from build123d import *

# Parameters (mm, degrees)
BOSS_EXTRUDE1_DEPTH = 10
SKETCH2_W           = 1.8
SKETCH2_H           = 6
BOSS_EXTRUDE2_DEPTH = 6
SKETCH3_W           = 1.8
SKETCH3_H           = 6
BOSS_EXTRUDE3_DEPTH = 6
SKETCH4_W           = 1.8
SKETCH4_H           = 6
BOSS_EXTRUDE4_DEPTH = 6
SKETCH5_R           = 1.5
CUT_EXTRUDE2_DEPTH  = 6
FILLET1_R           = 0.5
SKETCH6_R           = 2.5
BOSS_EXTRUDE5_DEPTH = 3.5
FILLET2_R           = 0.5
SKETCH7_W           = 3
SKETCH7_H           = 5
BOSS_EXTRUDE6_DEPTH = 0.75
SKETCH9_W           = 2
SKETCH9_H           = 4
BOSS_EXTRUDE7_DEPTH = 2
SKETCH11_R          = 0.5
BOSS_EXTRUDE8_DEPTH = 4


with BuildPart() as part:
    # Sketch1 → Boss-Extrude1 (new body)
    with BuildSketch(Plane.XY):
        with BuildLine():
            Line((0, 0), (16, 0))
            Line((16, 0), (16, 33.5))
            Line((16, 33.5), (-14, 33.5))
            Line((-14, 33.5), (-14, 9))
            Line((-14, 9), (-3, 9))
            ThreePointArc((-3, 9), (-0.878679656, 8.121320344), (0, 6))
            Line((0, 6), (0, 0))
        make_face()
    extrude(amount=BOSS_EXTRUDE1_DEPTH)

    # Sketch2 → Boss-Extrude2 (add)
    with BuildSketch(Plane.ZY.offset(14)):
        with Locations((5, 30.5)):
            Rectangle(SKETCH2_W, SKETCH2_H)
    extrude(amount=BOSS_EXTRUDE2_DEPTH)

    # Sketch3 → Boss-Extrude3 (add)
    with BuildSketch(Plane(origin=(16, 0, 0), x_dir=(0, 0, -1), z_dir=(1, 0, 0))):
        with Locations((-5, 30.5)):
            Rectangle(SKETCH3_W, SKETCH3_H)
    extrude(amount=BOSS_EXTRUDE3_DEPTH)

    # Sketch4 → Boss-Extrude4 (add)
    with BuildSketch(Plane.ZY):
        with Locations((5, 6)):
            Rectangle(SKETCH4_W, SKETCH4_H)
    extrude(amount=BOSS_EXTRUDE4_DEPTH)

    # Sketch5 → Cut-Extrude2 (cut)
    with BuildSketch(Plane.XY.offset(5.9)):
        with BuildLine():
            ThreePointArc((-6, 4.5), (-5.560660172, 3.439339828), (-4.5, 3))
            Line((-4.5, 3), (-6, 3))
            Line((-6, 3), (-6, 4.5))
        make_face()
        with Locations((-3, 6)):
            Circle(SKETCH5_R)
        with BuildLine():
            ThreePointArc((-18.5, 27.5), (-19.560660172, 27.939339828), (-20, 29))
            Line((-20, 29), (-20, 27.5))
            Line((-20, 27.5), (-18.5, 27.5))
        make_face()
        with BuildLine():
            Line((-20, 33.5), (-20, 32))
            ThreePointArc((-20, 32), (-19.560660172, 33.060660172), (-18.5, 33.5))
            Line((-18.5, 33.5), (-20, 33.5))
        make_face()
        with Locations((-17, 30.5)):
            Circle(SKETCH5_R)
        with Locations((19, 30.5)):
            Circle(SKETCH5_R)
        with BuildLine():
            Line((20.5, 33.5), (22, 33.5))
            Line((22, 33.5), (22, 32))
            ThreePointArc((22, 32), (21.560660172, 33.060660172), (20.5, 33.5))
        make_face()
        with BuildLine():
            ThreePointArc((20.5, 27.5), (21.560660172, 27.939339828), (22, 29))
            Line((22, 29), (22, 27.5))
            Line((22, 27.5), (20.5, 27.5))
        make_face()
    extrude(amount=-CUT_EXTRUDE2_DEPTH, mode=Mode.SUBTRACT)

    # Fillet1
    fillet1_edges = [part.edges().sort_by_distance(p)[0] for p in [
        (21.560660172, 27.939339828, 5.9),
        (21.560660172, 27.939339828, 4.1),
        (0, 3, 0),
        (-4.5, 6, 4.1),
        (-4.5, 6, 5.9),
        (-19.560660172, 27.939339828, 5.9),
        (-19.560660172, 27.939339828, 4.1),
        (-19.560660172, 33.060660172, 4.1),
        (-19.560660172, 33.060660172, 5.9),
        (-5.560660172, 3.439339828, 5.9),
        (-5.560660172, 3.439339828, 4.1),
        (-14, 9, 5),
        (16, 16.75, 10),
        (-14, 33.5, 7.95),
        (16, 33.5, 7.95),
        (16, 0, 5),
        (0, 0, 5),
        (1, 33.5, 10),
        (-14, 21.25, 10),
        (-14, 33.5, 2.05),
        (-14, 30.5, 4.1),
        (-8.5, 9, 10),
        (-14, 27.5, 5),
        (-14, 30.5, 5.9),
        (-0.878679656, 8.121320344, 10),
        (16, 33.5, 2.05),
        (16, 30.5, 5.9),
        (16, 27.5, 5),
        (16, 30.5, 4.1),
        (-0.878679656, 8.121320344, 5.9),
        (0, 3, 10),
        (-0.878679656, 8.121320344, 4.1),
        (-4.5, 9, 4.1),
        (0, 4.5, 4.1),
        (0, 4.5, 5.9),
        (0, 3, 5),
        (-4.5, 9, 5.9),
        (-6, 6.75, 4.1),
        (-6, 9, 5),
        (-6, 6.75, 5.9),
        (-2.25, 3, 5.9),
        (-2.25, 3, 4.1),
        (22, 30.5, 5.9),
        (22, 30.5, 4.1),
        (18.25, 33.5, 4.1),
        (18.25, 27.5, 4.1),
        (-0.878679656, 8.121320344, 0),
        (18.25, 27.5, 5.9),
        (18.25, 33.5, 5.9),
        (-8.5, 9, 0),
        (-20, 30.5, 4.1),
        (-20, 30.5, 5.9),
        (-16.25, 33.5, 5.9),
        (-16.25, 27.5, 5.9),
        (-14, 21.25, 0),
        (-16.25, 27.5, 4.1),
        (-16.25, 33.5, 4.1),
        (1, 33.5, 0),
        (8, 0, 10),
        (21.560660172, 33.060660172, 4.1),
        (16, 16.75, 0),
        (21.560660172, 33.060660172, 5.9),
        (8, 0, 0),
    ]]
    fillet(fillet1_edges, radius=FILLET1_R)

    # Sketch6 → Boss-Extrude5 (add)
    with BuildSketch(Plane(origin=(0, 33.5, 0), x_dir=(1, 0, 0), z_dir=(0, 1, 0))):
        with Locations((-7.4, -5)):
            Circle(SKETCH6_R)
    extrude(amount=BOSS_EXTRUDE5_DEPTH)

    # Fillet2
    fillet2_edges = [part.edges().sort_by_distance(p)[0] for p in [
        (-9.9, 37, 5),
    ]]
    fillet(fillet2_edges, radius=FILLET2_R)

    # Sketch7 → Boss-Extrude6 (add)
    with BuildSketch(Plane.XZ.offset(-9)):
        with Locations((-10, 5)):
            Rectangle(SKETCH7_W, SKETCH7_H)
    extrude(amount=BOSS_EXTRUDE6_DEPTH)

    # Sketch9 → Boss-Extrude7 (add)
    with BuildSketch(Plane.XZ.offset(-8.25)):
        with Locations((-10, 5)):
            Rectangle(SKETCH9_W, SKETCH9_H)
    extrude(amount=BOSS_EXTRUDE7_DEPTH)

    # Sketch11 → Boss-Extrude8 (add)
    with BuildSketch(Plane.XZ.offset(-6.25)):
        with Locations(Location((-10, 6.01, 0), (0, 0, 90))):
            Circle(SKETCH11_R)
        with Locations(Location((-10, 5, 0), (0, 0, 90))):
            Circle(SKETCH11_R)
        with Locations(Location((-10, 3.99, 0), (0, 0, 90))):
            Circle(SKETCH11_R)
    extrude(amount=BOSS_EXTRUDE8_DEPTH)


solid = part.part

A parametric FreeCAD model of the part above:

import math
import FreeCAD as App
import Part
import Sketcher

V = App.Vector


def edges_at(feature, points):
    """Names of the edges that pass closest to the given points."""
    edges = feature.Shape.Edges
    near = lambda p: min(range(len(edges)), key=lambda i: edges[i].distToShape(Part.Vertex(*p))[0])
    return sorted({f"Edge{near(p) + 1}" for p in points})

doc = App.newDocument("Part")
body = doc.addObject("PartDesign::Body", "Body")

# Sketch on XY plane
sketch1 = body.newObject("Sketcher::SketchObject", "Sketch")
sketch1.AttachmentSupport = (doc.getObject("XY_Plane"), [""])
sketch1.MapMode = "FlatFace"
sketch1.addGeometry([
    Part.LineSegment(V(0, 0, 0), V(16, 0, 0)),  # 0
    Part.LineSegment(V(16, 0, 0), V(16, 33.5, 0)),  # 1
    Part.LineSegment(V(16, 33.5, 0), V(-14, 33.5, 0)),  # 2
    Part.LineSegment(V(-14, 33.5, 0), V(-14, 9, 0)),  # 3
    Part.LineSegment(V(-14, 9, 0), V(-3, 9, 0)),  # 4
    Part.ArcOfCircle(Part.Circle(V(-3, 6, 0), V(0, 0, 1), 3), math.radians(0), math.radians(90)),  # 5
    Part.LineSegment(V(0, 6, 0), V(0, 0, 0)),  # 6
], False)
sketch1.addConstraint([
    Sketcher.Constraint("Coincident", 0, 2, 1, 1),
    Sketcher.Constraint("Coincident", 1, 2, 2, 1),
    Sketcher.Constraint("Coincident", 2, 2, 3, 1),
    Sketcher.Constraint("Coincident", 3, 2, 4, 1),
    Sketcher.Constraint("Tangent", 4, 2, 5, 2),
    Sketcher.Constraint("Tangent", 5, 1, 6, 1),
    Sketcher.Constraint("Coincident", 6, 2, 0, 1),
    Sketcher.Constraint("Horizontal", 0),
    Sketcher.Constraint("Vertical", 1),
    Sketcher.Constraint("Horizontal", 2),
    Sketcher.Constraint("Vertical", 3),
    Sketcher.Constraint("Horizontal", 4),
    Sketcher.Constraint("Vertical", 6),
    Sketcher.Constraint("Coincident", 6, 2, -1, 1),
    Sketcher.Constraint("Radius", 5, 3.0),
    Sketcher.Constraint("DistanceX", 0, 1, 0, 2, 16.0),
    Sketcher.Constraint("DistanceX", 2, 2, 2, 1, 30.0),
    Sketcher.Constraint("DistanceY", 6, 2, 6, 1, 6.0),
    Sketcher.Constraint("DistanceY", 1, 1, 1, 2, 33.5),
])
pad1 = body.newObject("PartDesign::Pad", "Pad")
pad1.Profile = sketch1
pad1.Length = 10

# Sketch on YZ plane
sketch2 = body.newObject("Sketcher::SketchObject", "Sketch001")
sketch2.AttachmentSupport = (doc.getObject("YZ_Plane"), [""])
sketch2.MapMode = "FlatFace"
sketch2.AttachmentOffset = App.Placement(V(0, 0, -14), App.Rotation())
sketch2.addGeometry([
    Part.LineSegment(V(33.5, 4.1, 0), V(27.5, 4.1, 0)),
    Part.LineSegment(V(27.5, 4.1, 0), V(27.5, 5.9, 0)),
    Part.LineSegment(V(27.5, 5.9, 0), V(33.5, 5.9, 0)),
    Part.LineSegment(V(33.5, 5.9, 0), V(33.5, 4.1, 0)),
], False)
sketch2.addConstraint([
    Sketcher.Constraint("Coincident", 0, 2, 1, 1),
    Sketcher.Constraint("Coincident", 1, 2, 2, 1),
    Sketcher.Constraint("Coincident", 2, 2, 3, 1),
    Sketcher.Constraint("Coincident", 3, 2, 0, 1),
    Sketcher.Constraint("Horizontal", 0),
    Sketcher.Constraint("Vertical", 1),
    Sketcher.Constraint("Horizontal", 2),
    Sketcher.Constraint("Vertical", 3),
    Sketcher.Constraint("DistanceX", 0, 2, 0, 1, 6.0),
    Sketcher.Constraint("DistanceY", 1, 1, 1, 2, 1.8),
    Sketcher.Constraint("DistanceX", -1, 1, 0, 2, 27.5),
    Sketcher.Constraint("DistanceY", -1, 1, 0, 2, 4.1),
])
pad2 = body.newObject("PartDesign::Pad", "Pad001")
pad2.Profile = sketch2
pad2.Length = 6
pad2.Reversed = True

# Sketch on YZ plane
sketch3 = body.newObject("Sketcher::SketchObject", "Sketch002")
sketch3.AttachmentSupport = (doc.getObject("YZ_Plane"), [""])
sketch3.MapMode = "FlatFace"
sketch3.AttachmentOffset = App.Placement(V(0, 0, 16), App.Rotation())
sketch3.addGeometry([
    Part.LineSegment(V(33.5, 5.9, 0), V(27.5, 5.9, 0)),
    Part.LineSegment(V(27.5, 5.9, 0), V(27.5, 4.1, 0)),
    Part.LineSegment(V(27.5, 4.1, 0), V(33.5, 4.1, 0)),
    Part.LineSegment(V(33.5, 4.1, 0), V(33.5, 5.9, 0)),
], False)
sketch3.addConstraint([
    Sketcher.Constraint("Coincident", 0, 2, 1, 1),
    Sketcher.Constraint("Coincident", 1, 2, 2, 1),
    Sketcher.Constraint("Coincident", 2, 2, 3, 1),
    Sketcher.Constraint("Coincident", 3, 2, 0, 1),
    Sketcher.Constraint("Horizontal", 0),
    Sketcher.Constraint("Vertical", 1),
    Sketcher.Constraint("Horizontal", 2),
    Sketcher.Constraint("Vertical", 3),
    Sketcher.Constraint("DistanceX", 0, 2, 0, 1, 6.0),
    Sketcher.Constraint("DistanceY", 1, 2, 1, 1, 1.8),
    Sketcher.Constraint("DistanceX", -1, 1, 0, 2, 27.5),
    Sketcher.Constraint("DistanceY", -1, 1, 0, 2, 5.9),
])
pad3 = body.newObject("PartDesign::Pad", "Pad002")
pad3.Profile = sketch3
pad3.Length = 6

# Sketch on YZ plane
sketch4 = body.newObject("Sketcher::SketchObject", "Sketch003")
sketch4.AttachmentSupport = (doc.getObject("YZ_Plane"), [""])
sketch4.MapMode = "FlatFace"
sketch4.addGeometry([
    Part.LineSegment(V(9, 4.1, 0), V(3, 4.1, 0)),
    Part.LineSegment(V(3, 4.1, 0), V(3, 5.9, 0)),
    Part.LineSegment(V(3, 5.9, 0), V(9, 5.9, 0)),
    Part.LineSegment(V(9, 5.9, 0), V(9, 4.1, 0)),
], False)
sketch4.addConstraint([
    Sketcher.Constraint("Coincident", 0, 2, 1, 1),
    Sketcher.Constraint("Coincident", 1, 2, 2, 1),
    Sketcher.Constraint("Coincident", 2, 2, 3, 1),
    Sketcher.Constraint("Coincident", 3, 2, 0, 1),
    Sketcher.Constraint("Horizontal", 0),
    Sketcher.Constraint("Vertical", 1),
    Sketcher.Constraint("Horizontal", 2),
    Sketcher.Constraint("Vertical", 3),
    Sketcher.Constraint("DistanceX", 0, 2, 0, 1, 6.0),
    Sketcher.Constraint("DistanceY", 1, 1, 1, 2, 1.8),
    Sketcher.Constraint("DistanceX", -1, 1, 0, 2, 3.0),
    Sketcher.Constraint("DistanceY", -1, 1, 0, 2, 4.1),
])
pad4 = body.newObject("PartDesign::Pad", "Pad003")
pad4.Profile = sketch4
pad4.Length = 6
pad4.Reversed = True

# Sketch on XY plane
sketch5 = body.newObject("Sketcher::SketchObject", "Sketch004")
sketch5.AttachmentSupport = (doc.getObject("XY_Plane"), [""])
sketch5.MapMode = "FlatFace"
sketch5.AttachmentOffset = App.Placement(V(0, 0, 5.9), App.Rotation())
sketch5.addGeometry([
    Part.ArcOfCircle(Part.Circle(V(-4.5, 4.5, 0), V(0, 0, 1), 1.5), math.radians(180), math.radians(270)),  # 0
    Part.LineSegment(V(-6, 4.5, 0), V(-6, 3, 0)),  # 1
    Part.LineSegment(V(-6, 3, 0), V(-4.5, 3, 0)),  # 2
    Part.Circle(V(-3, 6, 0), V(0, 0, 1), 1.5),  # 3
    Part.ArcOfCircle(Part.Circle(V(-18.5, 29, 0), V(0, 0, 1), 1.5), math.radians(180), math.radians(270)),  # 4
    Part.LineSegment(V(-20, 29, 0), V(-20, 27.5, 0)),  # 5
    Part.LineSegment(V(-20, 27.5, 0), V(-18.5, 27.5, 0)),  # 6
    Part.LineSegment(V(-20, 33.5, 0), V(-20, 32, 0)),  # 7
    Part.ArcOfCircle(Part.Circle(V(-18.5, 32, 0), V(0, 0, 1), 1.5), math.radians(90), math.radians(180)),  # 8
    Part.LineSegment(V(-18.5, 33.5, 0), V(-20, 33.5, 0)),  # 9
    Part.Circle(V(-17, 30.5, 0), V(0, 0, 1), 1.5),  # 10
    Part.Circle(V(19, 30.5, 0), V(0, 0, 1), 1.5),  # 11
    Part.LineSegment(V(22, 33.5, 0), V(20.5, 33.5, 0)),  # 12
    Part.ArcOfCircle(Part.Circle(V(20.5, 32, 0), V(0, 0, 1), 1.5), math.radians(0), math.radians(90)),  # 13
    Part.LineSegment(V(22, 32, 0), V(22, 33.5, 0)),  # 14
    Part.ArcOfCircle(Part.Circle(V(20.5, 29, 0), V(0, 0, 1), 1.5), math.radians(-90), math.radians(0)),  # 15
    Part.LineSegment(V(20.5, 27.5, 0), V(22, 27.5, 0)),  # 16
    Part.LineSegment(V(22, 27.5, 0), V(22, 29, 0)),  # 17
], False)
sketch5.addConstraint([
    Sketcher.Constraint("Tangent", 0, 1, 1, 1),
    Sketcher.Constraint("Coincident", 1, 2, 2, 1),
    Sketcher.Constraint("Tangent", 2, 2, 0, 2),
    Sketcher.Constraint("Tangent", 4, 1, 5, 1),
    Sketcher.Constraint("Coincident", 5, 2, 6, 1),
    Sketcher.Constraint("Tangent", 6, 2, 4, 2),
    Sketcher.Constraint("Tangent", 7, 2, 8, 2),
    Sketcher.Constraint("Tangent", 8, 1, 9, 1),
    Sketcher.Constraint("Coincident", 9, 2, 7, 1),
    Sketcher.Constraint("Tangent", 12, 2, 13, 2),
    Sketcher.Constraint("Tangent", 13, 1, 14, 1),
    Sketcher.Constraint("Coincident", 14, 2, 12, 1),
    Sketcher.Constraint("Tangent", 15, 1, 16, 1),
    Sketcher.Constraint("Coincident", 16, 2, 17, 1),
    Sketcher.Constraint("Tangent", 17, 2, 15, 2),
    Sketcher.Constraint("Vertical", 1),
    Sketcher.Constraint("Horizontal", 2),
    Sketcher.Constraint("Vertical", 5),
    Sketcher.Constraint("Horizontal", 6),
    Sketcher.Constraint("Vertical", 7),
    Sketcher.Constraint("Horizontal", 9),
    Sketcher.Constraint("Horizontal", 12),
    Sketcher.Constraint("Vertical", 14),
    Sketcher.Constraint("Horizontal", 16),
    Sketcher.Constraint("Vertical", 17),
    Sketcher.Constraint("Equal", 0, 3),
    Sketcher.Constraint("Equal", 3, 4),
    Sketcher.Constraint("Equal", 4, 8),
    Sketcher.Constraint("Equal", 8, 10),
    Sketcher.Constraint("Equal", 10, 11),
    Sketcher.Constraint("Equal", 11, 13),
    Sketcher.Constraint("Equal", 13, 15),
    Sketcher.Constraint("Horizontal", 10, 3, 11, 3),
    Sketcher.Constraint("Horizontal", 8, 3, 13, 3),
    Sketcher.Constraint("Horizontal", 4, 3, 15, 3),
    Sketcher.Constraint("Vertical", 4, 3, 8, 3),
    Sketcher.Constraint("Vertical", 13, 3, 15, 3),
    Sketcher.Constraint("Diameter", 3, 3.0),
    Sketcher.Constraint("DistanceX", 3, 3, -1, 1, 3.0),
    Sketcher.Constraint("DistanceY", -1, 1, 3, 3, 6.0),
    Sketcher.Constraint("DistanceY", -1, 1, 4, 3, 29.0),
    Sketcher.Constraint("DistanceY", -1, 1, 8, 3, 32.0),
    Sketcher.Constraint("DistanceX", 10, 3, -1, 1, 17.0),
    Sketcher.Constraint("DistanceX", -1, 1, 11, 3, 19.0),
    Sketcher.Constraint("DistanceX", 0, 1, -1, 1, 6.0),
    Sketcher.Constraint("DistanceY", -1, 1, 1, 2, 3.0),
    Sketcher.Constraint("DistanceX", 4, 1, -1, 1, 20.0),
    Sketcher.Constraint("DistanceX", -1, 1, 13, 1, 22.0),
    Sketcher.Constraint("DistanceY", 0, 3, 10, 3, 26.0),
])
pocket1 = body.newObject("PartDesign::Pocket", "Pocket")
pocket1.Profile = sketch5
pocket1.Length = 6
doc.recompute()

fillet = body.newObject("PartDesign::Fillet", "Fillet")
fillet.Base = (pocket1, edges_at(pocket1, [
    (21.561, 27.939, 5.9),
    (21.561, 27.939, 4.1),
    (0, 3, 0),
    (-4.5, 6, 4.1),
    (-4.5, 6, 5.9),
    (-19.561, 27.939, 5.9),
    (-19.561, 27.939, 4.1),
    (-19.561, 33.061, 4.1),
    (-19.561, 33.061, 5.9),
    (-5.561, 3.439, 5.9),
    (-5.561, 3.439, 4.1),
    (-14, 9, 5),
    (16, 16.75, 10),
    (-14, 33.5, 7.95),
    (16, 33.5, 7.95),
    (16, 0, 5),
    (0, 0, 5),
    (1, 33.5, 10),
    (-14, 21.25, 10),
    (-14, 33.5, 2.05),
    (-14, 30.5, 4.1),
    (-8.5, 9, 10),
    (-14, 27.5, 5),
    (-14, 30.5, 5.9),
    (-0.879, 8.121, 10),
    (16, 33.5, 2.05),
    (16, 30.5, 5.9),
    (16, 27.5, 5),
    (16, 30.5, 4.1),
    (-0.879, 8.121, 5.9),
    (0, 3, 10),
    (-0.879, 8.121, 4.1),
    (-4.5, 9, 4.1),
    (0, 4.5, 4.1),
    (0, 4.5, 5.9),
    (0, 3, 5),
    (-4.5, 9, 5.9),
    (-6, 6.75, 4.1),
    (-6, 9, 5),
    (-6, 6.75, 5.9),
    (-2.25, 3, 5.9),
    (-2.25, 3, 4.1),
    (22, 30.5, 5.9),
    (22, 30.5, 4.1),
    (18.25, 33.5, 4.1),
    (18.25, 27.5, 4.1),
    (-0.879, 8.121, 0),
    (18.25, 27.5, 5.9),
    (18.25, 33.5, 5.9),
    (-8.5, 9, 0),
    (-20, 30.5, 4.1),
    (-20, 30.5, 5.9),
    (-16.25, 33.5, 5.9),
    (-16.25, 27.5, 5.9),
    (-14, 21.25, 0),
    (-16.25, 27.5, 4.1),
    (-16.25, 33.5, 4.1),
    (1, 33.5, 0),
    (8, 0, 10),
    (21.561, 33.061, 4.1),
    (16, 16.75, 0),
    (21.561, 33.061, 5.9),
    (8, 0, 0),
]))
fillet.Radius = 0.5

# Sketch on XZ plane
sketch6 = body.newObject("Sketcher::SketchObject", "Sketch005")
sketch6.AttachmentSupport = (doc.getObject("XZ_Plane"), [""])
sketch6.MapMode = "FlatFace"
sketch6.AttachmentOffset = App.Placement(V(0, 0, -33.5), App.Rotation())
sketch6.addGeometry(Part.Circle(V(-7.4, 5, 0), V(0, 0, 1), 2.5), False)
sketch6.addConstraint([
    Sketcher.Constraint("Diameter", 0, 5.0),
    Sketcher.Constraint("DistanceY", -1, 1, 0, 3, 5.0),
    Sketcher.Constraint("DistanceX", 0, 3, -1, 1, 7.4),
])
pad5 = body.newObject("PartDesign::Pad", "Pad004")
pad5.Profile = sketch6
pad5.Length = 3.5
pad5.Reversed = True
doc.recompute()

fillet2 = body.newObject("PartDesign::Fillet", "Fillet001")
fillet2.Base = (pad5, edges_at(pad5, [(-9.9, 37, 5)]))
fillet2.Radius = 0.5

# Sketch on XZ plane
sketch7 = body.newObject("Sketcher::SketchObject", "Sketch006")
sketch7.AttachmentSupport = (doc.getObject("XZ_Plane"), [""])
sketch7.MapMode = "FlatFace"
sketch7.AttachmentOffset = App.Placement(V(0, 0, -9), App.Rotation())
sketch7.addGeometry([
    Part.LineSegment(V(-11.5, 7.5, 0), V(-11.5, 2.5, 0)),
    Part.LineSegment(V(-11.5, 2.5, 0), V(-8.5, 2.5, 0)),
    Part.LineSegment(V(-8.5, 2.5, 0), V(-8.5, 7.5, 0)),
    Part.LineSegment(V(-8.5, 7.5, 0), V(-11.5, 7.5, 0)),
], False)
sketch7.addConstraint([
    Sketcher.Constraint("Coincident", 0, 2, 1, 1),
    Sketcher.Constraint("Coincident", 1, 2, 2, 1),
    Sketcher.Constraint("Coincident", 2, 2, 3, 1),
    Sketcher.Constraint("Coincident", 3, 2, 0, 1),
    Sketcher.Constraint("Vertical", 0),
    Sketcher.Constraint("Horizontal", 1),
    Sketcher.Constraint("Vertical", 2),
    Sketcher.Constraint("Horizontal", 3),
    Sketcher.Constraint("DistanceX", 1, 1, 1, 2, 3.0),
    Sketcher.Constraint("DistanceY", 0, 2, 0, 1, 5.0),
    Sketcher.Constraint("DistanceX", 0, 2, -1, 1, 11.5),
    Sketcher.Constraint("DistanceY", -1, 1, 0, 2, 2.5),
])
pad6 = body.newObject("PartDesign::Pad", "Pad005")
pad6.Profile = sketch7
pad6.Length = 0.75

# Sketch on XZ plane
sketch8 = body.newObject("Sketcher::SketchObject", "Sketch007")
sketch8.AttachmentSupport = (doc.getObject("XZ_Plane"), [""])
sketch8.MapMode = "FlatFace"
sketch8.AttachmentOffset = App.Placement(V(0, 0, -8.25), App.Rotation())
sketch8.addGeometry([
    Part.LineSegment(V(-11, 7, 0), V(-11, 3, 0)),
    Part.LineSegment(V(-11, 3, 0), V(-9, 3, 0)),
    Part.LineSegment(V(-9, 3, 0), V(-9, 7, 0)),
    Part.LineSegment(V(-9, 7, 0), V(-11, 7, 0)),
], False)
sketch8.addConstraint([
    Sketcher.Constraint("Coincident", 0, 2, 1, 1),
    Sketcher.Constraint("Coincident", 1, 2, 2, 1),
    Sketcher.Constraint("Coincident", 2, 2, 3, 1),
    Sketcher.Constraint("Coincident", 3, 2, 0, 1),
    Sketcher.Constraint("Vertical", 0),
    Sketcher.Constraint("Horizontal", 1),
    Sketcher.Constraint("Vertical", 2),
    Sketcher.Constraint("Horizontal", 3),
    Sketcher.Constraint("DistanceX", 1, 1, 1, 2, 2.0),
    Sketcher.Constraint("DistanceY", 0, 2, 0, 1, 4.0),
    Sketcher.Constraint("DistanceX", 0, 2, -1, 1, 11.0),
    Sketcher.Constraint("DistanceY", -1, 1, 0, 2, 3.0),
])
pad7 = body.newObject("PartDesign::Pad", "Pad006")
pad7.Profile = sketch8
pad7.Length = 2

# Sketch on XZ plane
sketch9 = body.newObject("Sketcher::SketchObject", "Sketch008")
sketch9.AttachmentSupport = (doc.getObject("XZ_Plane"), [""])
sketch9.MapMode = "FlatFace"
sketch9.AttachmentOffset = App.Placement(V(0, 0, -6.25), App.Rotation())
sketch9.addGeometry([
    Part.Circle(V(-10, 6, 0), V(0, 0, 1), 0.5),
    Part.Circle(V(-10, 5, 0), V(0, 0, 1), 0.5),
    Part.Circle(V(-10, 4, 0), V(0, 0, 1), 0.5),
], False)
sketch9.addConstraint([
    Sketcher.Constraint("Equal", 0, 1),
    Sketcher.Constraint("Equal", 1, 2),
    Sketcher.Constraint("Vertical", 0, 3, 1, 3),
    Sketcher.Constraint("Vertical", 1, 3, 2, 3),
    Sketcher.Constraint("Diameter", 0, 1.0),
    Sketcher.Constraint("DistanceX", 0, 3, -1, 1, 10.0),
    Sketcher.Constraint("DistanceY", -1, 1, 1, 3, 5.0),
    Sketcher.Constraint("DistanceY", -1, 1, 0, 3, 6.01),
    Sketcher.Constraint("DistanceY", -1, 1, 2, 3, 3.99),
])
pad8 = body.newObject("PartDesign::Pad", "Pad007")
pad8.Profile = sketch9
pad8.Length = 4

doc.recompute()
